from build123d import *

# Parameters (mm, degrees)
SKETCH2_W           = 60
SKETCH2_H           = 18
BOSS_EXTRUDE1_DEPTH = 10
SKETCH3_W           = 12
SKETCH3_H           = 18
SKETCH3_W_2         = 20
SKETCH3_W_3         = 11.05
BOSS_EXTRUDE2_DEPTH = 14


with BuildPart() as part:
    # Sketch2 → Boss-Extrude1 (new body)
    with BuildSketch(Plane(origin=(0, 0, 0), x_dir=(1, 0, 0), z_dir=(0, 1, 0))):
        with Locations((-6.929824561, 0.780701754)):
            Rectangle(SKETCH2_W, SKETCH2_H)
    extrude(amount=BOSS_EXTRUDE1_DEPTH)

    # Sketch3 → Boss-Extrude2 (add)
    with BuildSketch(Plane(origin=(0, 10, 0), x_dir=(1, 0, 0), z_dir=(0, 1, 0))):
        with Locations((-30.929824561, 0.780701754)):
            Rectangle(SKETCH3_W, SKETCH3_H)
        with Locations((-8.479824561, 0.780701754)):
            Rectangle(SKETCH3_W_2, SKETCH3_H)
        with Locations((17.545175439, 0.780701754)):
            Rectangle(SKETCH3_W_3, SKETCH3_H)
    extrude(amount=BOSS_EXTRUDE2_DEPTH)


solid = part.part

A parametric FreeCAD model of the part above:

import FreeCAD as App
import Part
import Sketcher
from FreeCAD import Vector
Q = App.Units.Quantity


def add_polygon(sketch, points):
    """Adds a closed chain of lines whose ends are joined by coincident constraints."""
    first, n = sketch.GeometryCount, len(points)
    for a, b in zip(points, points[1:] + points[:1]):
        sketch.addGeometry(Part.LineSegment(App.Vector(*a, 0), App.Vector(*b, 0)), False)
    for i in range(n):
        sketch.addConstraint(Sketcher.Constraint("Coincident", first + i, 2, first + (i + 1) % n, 1))

doc = App.newDocument("Part")
body = doc.addObject("PartDesign::Body", "Body")

sketch1 = doc.addObject("Sketcher::SketchObject", "Sketch")
body.addObject(sketch1)
sketch1.AttachmentSupport = (doc.XZ_Plane, [""])
sketch1.MapMode = "FlatFace"
add_polygon(sketch1, [(-37, -10), (-37, 8), (23, 8), (23, -10)])
sketch1.addConstraint([
    Sketcher.Constraint("Vertical", 0),
    Sketcher.Constraint("Horizontal", 1),
    Sketcher.Constraint("Vertical", 2),
    Sketcher.Constraint("Horizontal", 3),
    Sketcher.Constraint("DistanceX", 1, 1, 1, 2, Q("60 mm")),
    Sketcher.Constraint("DistanceY", 0, 1, 0, 2, Q("18 mm")),
    Sketcher.Constraint("DistanceY", -1, 1, 0, 2, Q("8.219298 mm")),
    Sketcher.Constraint("DistanceX", 0, 2, -1, 1, Q("36.929825 mm")),
])
pad1 = doc.addObject("PartDesign::Pad", "Pad")
body.addObject(pad1)
pad1.Profile = sketch1
pad1.Length = 10
pad1.Reversed = True

sketch2 = doc.addObject("Sketcher::SketchObject", "Sketch001")
body.addObject(sketch2)
sketch2.AttachmentSupport = (doc.XZ_Plane, [""])
sketch2.MapMode = "FlatFace"
sketch2.AttachmentOffset = App.Placement(Vector(0, 0, -10), App.Rotation())
add_polygon(sketch2, [(-37, -10), (-37, 8), (-25, 8), (-25, -10)])
add_polygon(sketch2, [(-18, -10), (-18, 8), (2, 8), (2, -10)])
add_polygon(sketch2, [(12, -10), (12, 8), (23, 8), (23, -10)])
sketch2.addConstraint([
    Sketcher.Constraint("Vertical", 0),
    Sketcher.Constraint("Horizontal", 1),
    Sketcher.Constraint("Vertical", 2),
    Sketcher.Constraint("Horizontal", 3),
    Sketcher.Constraint("Vertical", 4),
    Sketcher.Constraint("Horizontal", 5),
    Sketcher.Constraint("Vertical", 6),
    Sketcher.Constraint("Horizontal", 7),
    Sketcher.Constraint("Vertical", 8),
    Sketcher.Constraint("Horizontal", 9),
    Sketcher.Constraint("Vertical", 10),
    Sketcher.Constraint("Horizontal", 11),
    Sketcher.Constraint("Horizontal", 1, 2, 4, 2),
    Sketcher.Constraint("Horizontal", 3, 2, 6, 2),
    Sketcher.Constraint("Horizontal", 5, 2, 8, 2),
    Sketcher.Constraint("Horizontal", 7, 2, 10, 2),
    Sketcher.Constraint("DistanceX", 1, 1, 1, 2, Q("12 mm")),
    Sketcher.Constraint("DistanceX", 5, 1, 5, 2, Q("20 mm")),
    Sketcher.Constraint("DistanceY", 0, 1, 0, 2, Q("18 mm")),
    Sketcher.Constraint("DistanceX", 9, 1, 9, 2, Q("11.05 mm")),
    Sketcher.Constraint("DistanceX", 5, 2, 8, 2, Q("10.5 mm")),
    Sketcher.Constraint("DistanceX", 1, 2, 4, 2, Q("6.45 mm")),
    Sketcher.Constraint("DistanceY", -1, 1, 0, 2, Q("8.219298 mm")),
    Sketcher.Constraint("DistanceX", 0, 2, -1, 1, Q("36.929825 mm")),
])
pad2 = doc.addObject("PartDesign::Pad", "Pad001")
body.addObject(pad2)
pad2.Profile = sketch2
pad2.Length = 14
pad2.Reversed = True

doc.recompute()
